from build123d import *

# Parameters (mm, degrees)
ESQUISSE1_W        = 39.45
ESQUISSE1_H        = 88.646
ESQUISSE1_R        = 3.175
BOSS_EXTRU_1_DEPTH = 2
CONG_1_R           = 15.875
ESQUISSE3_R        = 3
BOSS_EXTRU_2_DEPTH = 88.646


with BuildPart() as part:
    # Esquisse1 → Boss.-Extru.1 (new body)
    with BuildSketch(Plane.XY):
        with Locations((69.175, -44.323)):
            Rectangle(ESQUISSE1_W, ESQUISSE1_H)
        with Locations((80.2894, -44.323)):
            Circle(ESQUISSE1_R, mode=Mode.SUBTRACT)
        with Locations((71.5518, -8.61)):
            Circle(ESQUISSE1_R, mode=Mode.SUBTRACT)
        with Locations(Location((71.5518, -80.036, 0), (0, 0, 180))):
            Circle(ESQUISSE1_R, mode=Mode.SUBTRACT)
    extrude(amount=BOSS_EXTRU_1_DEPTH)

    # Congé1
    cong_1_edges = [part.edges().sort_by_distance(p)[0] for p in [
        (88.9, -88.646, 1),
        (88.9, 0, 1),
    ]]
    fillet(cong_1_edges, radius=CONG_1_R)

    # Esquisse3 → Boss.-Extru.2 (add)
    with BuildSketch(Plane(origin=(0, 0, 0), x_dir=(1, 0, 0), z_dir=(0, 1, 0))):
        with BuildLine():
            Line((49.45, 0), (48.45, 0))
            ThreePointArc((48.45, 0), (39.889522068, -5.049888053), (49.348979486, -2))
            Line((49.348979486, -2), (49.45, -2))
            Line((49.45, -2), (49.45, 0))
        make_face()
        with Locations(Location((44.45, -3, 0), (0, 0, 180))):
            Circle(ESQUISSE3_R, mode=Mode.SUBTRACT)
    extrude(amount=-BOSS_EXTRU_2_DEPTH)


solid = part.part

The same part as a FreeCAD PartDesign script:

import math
import FreeCAD as App
import Part
import Sketcher

V = App.Vector


def edges_at(feature, points):
    """Names of the edges that pass closest to the given points."""
    edges = feature.Shape.Edges
    near = lambda p: min(range(len(edges)), key=lambda i: edges[i].distToShape(Part.Vertex(*p))[0])
    return sorted({f"Edge{near(p) + 1}" for p in points})


def add_polygon(sketch, points):
    """Adds a closed chain of lines whose ends are joined by coincident constraints."""
    first, n = sketch.GeometryCount, len(points)
    for a, b in zip(points, points[1:] + points[:1]):
        sketch.addGeometry(Part.LineSegment(App.Vector(*a, 0), App.Vector(*b, 0)), False)
    for i in range(n):
        sketch.addConstraint(Sketcher.Constraint("Coincident", first + i, 2, first + (i + 1) % n, 1))

doc = App.newDocument("Part")
body = doc.addObject("PartDesign::Body", "Body")

sketch1 = body.newObject("Sketcher::SketchObject", "Sketch")
sketch1.AttachmentSupport = (doc.getObject("XY_Plane"), [""])
sketch1.MapMode = "FlatFace"
add_polygon(sketch1, [(49.5, 0), (49.5, -88.6), (88.9, -88.6), (88.9, 0)])
sketch1.addGeometry(Part.Circle(V(71.6, -80, 0), V(0, 0, 1), 3.2), False)
sketch1.addGeometry(Part.Circle(V(71.6, -8.6, 0), V(0, 0, 1), 3.2), False)
sketch1.addGeometry(Part.Circle(V(80.3, -44.3, 0), V(0, 0, 1), 3.2), False)
sketch1.addConstraint([
    Sketcher.Constraint("Vertical", 0),
    Sketcher.Constraint("Horizontal", 1),
    Sketcher.Constraint("Vertical", 2),
    Sketcher.Constraint("Horizontal", 3),
    Sketcher.Constraint("Equal", 4, 5),
    Sketcher.Constraint("Equal", 5, 6),
    Sketcher.Constraint("PointOnObject", 2, 2, -1),
    Sketcher.Constraint("Vertical", 4, 3, 5, 3),
    Sketcher.Constraint("Diameter", 4, 6.35),
    Sketcher.Constraint("DistanceX", 1, 1, 1, 2, 39.45),
    Sketcher.Constraint("DistanceX", -1, 1, 1, 2, 88.9),
    Sketcher.Constraint("DistanceY", 0, 2, 0, 1, 88.646),
    Sketcher.Constraint("DistanceY", 5, 3, -1, 1, 8.61),
    Sketcher.Constraint("DistanceY", 0, 2, 4, 3, 8.61),
    Sketcher.Constraint("DistanceY", 6, 3, -1, 1, 44.323),
    Sketcher.Constraint("DistanceX", -1, 1, 4, 3, 71.5518),
    Sketcher.Constraint("DistanceX", -1, 1, 6, 3, 80.2894),
])
pad1 = body.newObject("PartDesign::Pad", "Pad")
pad1.Profile = sketch1
pad1.Length = 2
doc.recompute()

fillet = body.newObject("PartDesign::Fillet", "Fillet")
fillet.Base = (pad1, edges_at(pad1, [(88.9, -88.646, 1), (88.9, 0, 1)]))
fillet.Radius = 15.875

sketch2 = body.newObject("Sketcher::SketchObject", "Sketch001")
sketch2.AttachmentSupport = (doc.getObject("XZ_Plane"), [""])
sketch2.MapMode = "FlatFace"
sketch2.addGeometry([
    Part.LineSegment(V(49.45, 0, 0), V(48.45, 0, 0)),
    Part.ArcOfCircle(Part.Circle(V(44.45, 3, 0), V(0, 0, 1), 5), math.radians(-12), math.radians(323)),
    Part.LineSegment(V(49.35, 2, 0), V(49.45, 2, 0)),
    Part.LineSegment(V(49.45, 2, 0), V(49.45, 0, 0)),
    Part.Circle(V(44.45, 3, 0), V(0, 0, 1), 3),
], False)
sketch2.addConstraint([
    Sketcher.Constraint("Coincident", 0, 2, 1, 2),
    Sketcher.Constraint("Coincident", 1, 1, 2, 1),
    Sketcher.Constraint("Coincident", 2, 2, 3, 1),
    Sketcher.Constraint("Coincident", 3, 2, 0, 1),
    Sketcher.Constraint("Horizontal", 0),
    Sketcher.Constraint("Horizontal", 2),
    Sketcher.Constraint("Vertical", 3),
    Sketcher.Constraint("Coincident", 4, 3, 1, 3),
    Sketcher.Constraint("PointOnObject", 0, 2, -1),
    Sketcher.Constraint("Diameter", 4, 6.0),
    Sketcher.Constraint("Radius", 1, 5.0),
    Sketcher.Constraint("DistanceX", 0, 2, 0, 1, 1.0),
    Sketcher.Constraint("DistanceY", 3, 2, 3, 1, 2.0),
    Sketcher.Constraint("DistanceY", -1, 1, 1, 3, 3.0),
    Sketcher.Constraint("DistanceX", -1, 1, 1, 3, 44.45),
])
pad2 = body.newObject("PartDesign::Pad", "Pad001")
pad2.Profile = sketch2
pad2.Length = 88.646

doc.recompute()
